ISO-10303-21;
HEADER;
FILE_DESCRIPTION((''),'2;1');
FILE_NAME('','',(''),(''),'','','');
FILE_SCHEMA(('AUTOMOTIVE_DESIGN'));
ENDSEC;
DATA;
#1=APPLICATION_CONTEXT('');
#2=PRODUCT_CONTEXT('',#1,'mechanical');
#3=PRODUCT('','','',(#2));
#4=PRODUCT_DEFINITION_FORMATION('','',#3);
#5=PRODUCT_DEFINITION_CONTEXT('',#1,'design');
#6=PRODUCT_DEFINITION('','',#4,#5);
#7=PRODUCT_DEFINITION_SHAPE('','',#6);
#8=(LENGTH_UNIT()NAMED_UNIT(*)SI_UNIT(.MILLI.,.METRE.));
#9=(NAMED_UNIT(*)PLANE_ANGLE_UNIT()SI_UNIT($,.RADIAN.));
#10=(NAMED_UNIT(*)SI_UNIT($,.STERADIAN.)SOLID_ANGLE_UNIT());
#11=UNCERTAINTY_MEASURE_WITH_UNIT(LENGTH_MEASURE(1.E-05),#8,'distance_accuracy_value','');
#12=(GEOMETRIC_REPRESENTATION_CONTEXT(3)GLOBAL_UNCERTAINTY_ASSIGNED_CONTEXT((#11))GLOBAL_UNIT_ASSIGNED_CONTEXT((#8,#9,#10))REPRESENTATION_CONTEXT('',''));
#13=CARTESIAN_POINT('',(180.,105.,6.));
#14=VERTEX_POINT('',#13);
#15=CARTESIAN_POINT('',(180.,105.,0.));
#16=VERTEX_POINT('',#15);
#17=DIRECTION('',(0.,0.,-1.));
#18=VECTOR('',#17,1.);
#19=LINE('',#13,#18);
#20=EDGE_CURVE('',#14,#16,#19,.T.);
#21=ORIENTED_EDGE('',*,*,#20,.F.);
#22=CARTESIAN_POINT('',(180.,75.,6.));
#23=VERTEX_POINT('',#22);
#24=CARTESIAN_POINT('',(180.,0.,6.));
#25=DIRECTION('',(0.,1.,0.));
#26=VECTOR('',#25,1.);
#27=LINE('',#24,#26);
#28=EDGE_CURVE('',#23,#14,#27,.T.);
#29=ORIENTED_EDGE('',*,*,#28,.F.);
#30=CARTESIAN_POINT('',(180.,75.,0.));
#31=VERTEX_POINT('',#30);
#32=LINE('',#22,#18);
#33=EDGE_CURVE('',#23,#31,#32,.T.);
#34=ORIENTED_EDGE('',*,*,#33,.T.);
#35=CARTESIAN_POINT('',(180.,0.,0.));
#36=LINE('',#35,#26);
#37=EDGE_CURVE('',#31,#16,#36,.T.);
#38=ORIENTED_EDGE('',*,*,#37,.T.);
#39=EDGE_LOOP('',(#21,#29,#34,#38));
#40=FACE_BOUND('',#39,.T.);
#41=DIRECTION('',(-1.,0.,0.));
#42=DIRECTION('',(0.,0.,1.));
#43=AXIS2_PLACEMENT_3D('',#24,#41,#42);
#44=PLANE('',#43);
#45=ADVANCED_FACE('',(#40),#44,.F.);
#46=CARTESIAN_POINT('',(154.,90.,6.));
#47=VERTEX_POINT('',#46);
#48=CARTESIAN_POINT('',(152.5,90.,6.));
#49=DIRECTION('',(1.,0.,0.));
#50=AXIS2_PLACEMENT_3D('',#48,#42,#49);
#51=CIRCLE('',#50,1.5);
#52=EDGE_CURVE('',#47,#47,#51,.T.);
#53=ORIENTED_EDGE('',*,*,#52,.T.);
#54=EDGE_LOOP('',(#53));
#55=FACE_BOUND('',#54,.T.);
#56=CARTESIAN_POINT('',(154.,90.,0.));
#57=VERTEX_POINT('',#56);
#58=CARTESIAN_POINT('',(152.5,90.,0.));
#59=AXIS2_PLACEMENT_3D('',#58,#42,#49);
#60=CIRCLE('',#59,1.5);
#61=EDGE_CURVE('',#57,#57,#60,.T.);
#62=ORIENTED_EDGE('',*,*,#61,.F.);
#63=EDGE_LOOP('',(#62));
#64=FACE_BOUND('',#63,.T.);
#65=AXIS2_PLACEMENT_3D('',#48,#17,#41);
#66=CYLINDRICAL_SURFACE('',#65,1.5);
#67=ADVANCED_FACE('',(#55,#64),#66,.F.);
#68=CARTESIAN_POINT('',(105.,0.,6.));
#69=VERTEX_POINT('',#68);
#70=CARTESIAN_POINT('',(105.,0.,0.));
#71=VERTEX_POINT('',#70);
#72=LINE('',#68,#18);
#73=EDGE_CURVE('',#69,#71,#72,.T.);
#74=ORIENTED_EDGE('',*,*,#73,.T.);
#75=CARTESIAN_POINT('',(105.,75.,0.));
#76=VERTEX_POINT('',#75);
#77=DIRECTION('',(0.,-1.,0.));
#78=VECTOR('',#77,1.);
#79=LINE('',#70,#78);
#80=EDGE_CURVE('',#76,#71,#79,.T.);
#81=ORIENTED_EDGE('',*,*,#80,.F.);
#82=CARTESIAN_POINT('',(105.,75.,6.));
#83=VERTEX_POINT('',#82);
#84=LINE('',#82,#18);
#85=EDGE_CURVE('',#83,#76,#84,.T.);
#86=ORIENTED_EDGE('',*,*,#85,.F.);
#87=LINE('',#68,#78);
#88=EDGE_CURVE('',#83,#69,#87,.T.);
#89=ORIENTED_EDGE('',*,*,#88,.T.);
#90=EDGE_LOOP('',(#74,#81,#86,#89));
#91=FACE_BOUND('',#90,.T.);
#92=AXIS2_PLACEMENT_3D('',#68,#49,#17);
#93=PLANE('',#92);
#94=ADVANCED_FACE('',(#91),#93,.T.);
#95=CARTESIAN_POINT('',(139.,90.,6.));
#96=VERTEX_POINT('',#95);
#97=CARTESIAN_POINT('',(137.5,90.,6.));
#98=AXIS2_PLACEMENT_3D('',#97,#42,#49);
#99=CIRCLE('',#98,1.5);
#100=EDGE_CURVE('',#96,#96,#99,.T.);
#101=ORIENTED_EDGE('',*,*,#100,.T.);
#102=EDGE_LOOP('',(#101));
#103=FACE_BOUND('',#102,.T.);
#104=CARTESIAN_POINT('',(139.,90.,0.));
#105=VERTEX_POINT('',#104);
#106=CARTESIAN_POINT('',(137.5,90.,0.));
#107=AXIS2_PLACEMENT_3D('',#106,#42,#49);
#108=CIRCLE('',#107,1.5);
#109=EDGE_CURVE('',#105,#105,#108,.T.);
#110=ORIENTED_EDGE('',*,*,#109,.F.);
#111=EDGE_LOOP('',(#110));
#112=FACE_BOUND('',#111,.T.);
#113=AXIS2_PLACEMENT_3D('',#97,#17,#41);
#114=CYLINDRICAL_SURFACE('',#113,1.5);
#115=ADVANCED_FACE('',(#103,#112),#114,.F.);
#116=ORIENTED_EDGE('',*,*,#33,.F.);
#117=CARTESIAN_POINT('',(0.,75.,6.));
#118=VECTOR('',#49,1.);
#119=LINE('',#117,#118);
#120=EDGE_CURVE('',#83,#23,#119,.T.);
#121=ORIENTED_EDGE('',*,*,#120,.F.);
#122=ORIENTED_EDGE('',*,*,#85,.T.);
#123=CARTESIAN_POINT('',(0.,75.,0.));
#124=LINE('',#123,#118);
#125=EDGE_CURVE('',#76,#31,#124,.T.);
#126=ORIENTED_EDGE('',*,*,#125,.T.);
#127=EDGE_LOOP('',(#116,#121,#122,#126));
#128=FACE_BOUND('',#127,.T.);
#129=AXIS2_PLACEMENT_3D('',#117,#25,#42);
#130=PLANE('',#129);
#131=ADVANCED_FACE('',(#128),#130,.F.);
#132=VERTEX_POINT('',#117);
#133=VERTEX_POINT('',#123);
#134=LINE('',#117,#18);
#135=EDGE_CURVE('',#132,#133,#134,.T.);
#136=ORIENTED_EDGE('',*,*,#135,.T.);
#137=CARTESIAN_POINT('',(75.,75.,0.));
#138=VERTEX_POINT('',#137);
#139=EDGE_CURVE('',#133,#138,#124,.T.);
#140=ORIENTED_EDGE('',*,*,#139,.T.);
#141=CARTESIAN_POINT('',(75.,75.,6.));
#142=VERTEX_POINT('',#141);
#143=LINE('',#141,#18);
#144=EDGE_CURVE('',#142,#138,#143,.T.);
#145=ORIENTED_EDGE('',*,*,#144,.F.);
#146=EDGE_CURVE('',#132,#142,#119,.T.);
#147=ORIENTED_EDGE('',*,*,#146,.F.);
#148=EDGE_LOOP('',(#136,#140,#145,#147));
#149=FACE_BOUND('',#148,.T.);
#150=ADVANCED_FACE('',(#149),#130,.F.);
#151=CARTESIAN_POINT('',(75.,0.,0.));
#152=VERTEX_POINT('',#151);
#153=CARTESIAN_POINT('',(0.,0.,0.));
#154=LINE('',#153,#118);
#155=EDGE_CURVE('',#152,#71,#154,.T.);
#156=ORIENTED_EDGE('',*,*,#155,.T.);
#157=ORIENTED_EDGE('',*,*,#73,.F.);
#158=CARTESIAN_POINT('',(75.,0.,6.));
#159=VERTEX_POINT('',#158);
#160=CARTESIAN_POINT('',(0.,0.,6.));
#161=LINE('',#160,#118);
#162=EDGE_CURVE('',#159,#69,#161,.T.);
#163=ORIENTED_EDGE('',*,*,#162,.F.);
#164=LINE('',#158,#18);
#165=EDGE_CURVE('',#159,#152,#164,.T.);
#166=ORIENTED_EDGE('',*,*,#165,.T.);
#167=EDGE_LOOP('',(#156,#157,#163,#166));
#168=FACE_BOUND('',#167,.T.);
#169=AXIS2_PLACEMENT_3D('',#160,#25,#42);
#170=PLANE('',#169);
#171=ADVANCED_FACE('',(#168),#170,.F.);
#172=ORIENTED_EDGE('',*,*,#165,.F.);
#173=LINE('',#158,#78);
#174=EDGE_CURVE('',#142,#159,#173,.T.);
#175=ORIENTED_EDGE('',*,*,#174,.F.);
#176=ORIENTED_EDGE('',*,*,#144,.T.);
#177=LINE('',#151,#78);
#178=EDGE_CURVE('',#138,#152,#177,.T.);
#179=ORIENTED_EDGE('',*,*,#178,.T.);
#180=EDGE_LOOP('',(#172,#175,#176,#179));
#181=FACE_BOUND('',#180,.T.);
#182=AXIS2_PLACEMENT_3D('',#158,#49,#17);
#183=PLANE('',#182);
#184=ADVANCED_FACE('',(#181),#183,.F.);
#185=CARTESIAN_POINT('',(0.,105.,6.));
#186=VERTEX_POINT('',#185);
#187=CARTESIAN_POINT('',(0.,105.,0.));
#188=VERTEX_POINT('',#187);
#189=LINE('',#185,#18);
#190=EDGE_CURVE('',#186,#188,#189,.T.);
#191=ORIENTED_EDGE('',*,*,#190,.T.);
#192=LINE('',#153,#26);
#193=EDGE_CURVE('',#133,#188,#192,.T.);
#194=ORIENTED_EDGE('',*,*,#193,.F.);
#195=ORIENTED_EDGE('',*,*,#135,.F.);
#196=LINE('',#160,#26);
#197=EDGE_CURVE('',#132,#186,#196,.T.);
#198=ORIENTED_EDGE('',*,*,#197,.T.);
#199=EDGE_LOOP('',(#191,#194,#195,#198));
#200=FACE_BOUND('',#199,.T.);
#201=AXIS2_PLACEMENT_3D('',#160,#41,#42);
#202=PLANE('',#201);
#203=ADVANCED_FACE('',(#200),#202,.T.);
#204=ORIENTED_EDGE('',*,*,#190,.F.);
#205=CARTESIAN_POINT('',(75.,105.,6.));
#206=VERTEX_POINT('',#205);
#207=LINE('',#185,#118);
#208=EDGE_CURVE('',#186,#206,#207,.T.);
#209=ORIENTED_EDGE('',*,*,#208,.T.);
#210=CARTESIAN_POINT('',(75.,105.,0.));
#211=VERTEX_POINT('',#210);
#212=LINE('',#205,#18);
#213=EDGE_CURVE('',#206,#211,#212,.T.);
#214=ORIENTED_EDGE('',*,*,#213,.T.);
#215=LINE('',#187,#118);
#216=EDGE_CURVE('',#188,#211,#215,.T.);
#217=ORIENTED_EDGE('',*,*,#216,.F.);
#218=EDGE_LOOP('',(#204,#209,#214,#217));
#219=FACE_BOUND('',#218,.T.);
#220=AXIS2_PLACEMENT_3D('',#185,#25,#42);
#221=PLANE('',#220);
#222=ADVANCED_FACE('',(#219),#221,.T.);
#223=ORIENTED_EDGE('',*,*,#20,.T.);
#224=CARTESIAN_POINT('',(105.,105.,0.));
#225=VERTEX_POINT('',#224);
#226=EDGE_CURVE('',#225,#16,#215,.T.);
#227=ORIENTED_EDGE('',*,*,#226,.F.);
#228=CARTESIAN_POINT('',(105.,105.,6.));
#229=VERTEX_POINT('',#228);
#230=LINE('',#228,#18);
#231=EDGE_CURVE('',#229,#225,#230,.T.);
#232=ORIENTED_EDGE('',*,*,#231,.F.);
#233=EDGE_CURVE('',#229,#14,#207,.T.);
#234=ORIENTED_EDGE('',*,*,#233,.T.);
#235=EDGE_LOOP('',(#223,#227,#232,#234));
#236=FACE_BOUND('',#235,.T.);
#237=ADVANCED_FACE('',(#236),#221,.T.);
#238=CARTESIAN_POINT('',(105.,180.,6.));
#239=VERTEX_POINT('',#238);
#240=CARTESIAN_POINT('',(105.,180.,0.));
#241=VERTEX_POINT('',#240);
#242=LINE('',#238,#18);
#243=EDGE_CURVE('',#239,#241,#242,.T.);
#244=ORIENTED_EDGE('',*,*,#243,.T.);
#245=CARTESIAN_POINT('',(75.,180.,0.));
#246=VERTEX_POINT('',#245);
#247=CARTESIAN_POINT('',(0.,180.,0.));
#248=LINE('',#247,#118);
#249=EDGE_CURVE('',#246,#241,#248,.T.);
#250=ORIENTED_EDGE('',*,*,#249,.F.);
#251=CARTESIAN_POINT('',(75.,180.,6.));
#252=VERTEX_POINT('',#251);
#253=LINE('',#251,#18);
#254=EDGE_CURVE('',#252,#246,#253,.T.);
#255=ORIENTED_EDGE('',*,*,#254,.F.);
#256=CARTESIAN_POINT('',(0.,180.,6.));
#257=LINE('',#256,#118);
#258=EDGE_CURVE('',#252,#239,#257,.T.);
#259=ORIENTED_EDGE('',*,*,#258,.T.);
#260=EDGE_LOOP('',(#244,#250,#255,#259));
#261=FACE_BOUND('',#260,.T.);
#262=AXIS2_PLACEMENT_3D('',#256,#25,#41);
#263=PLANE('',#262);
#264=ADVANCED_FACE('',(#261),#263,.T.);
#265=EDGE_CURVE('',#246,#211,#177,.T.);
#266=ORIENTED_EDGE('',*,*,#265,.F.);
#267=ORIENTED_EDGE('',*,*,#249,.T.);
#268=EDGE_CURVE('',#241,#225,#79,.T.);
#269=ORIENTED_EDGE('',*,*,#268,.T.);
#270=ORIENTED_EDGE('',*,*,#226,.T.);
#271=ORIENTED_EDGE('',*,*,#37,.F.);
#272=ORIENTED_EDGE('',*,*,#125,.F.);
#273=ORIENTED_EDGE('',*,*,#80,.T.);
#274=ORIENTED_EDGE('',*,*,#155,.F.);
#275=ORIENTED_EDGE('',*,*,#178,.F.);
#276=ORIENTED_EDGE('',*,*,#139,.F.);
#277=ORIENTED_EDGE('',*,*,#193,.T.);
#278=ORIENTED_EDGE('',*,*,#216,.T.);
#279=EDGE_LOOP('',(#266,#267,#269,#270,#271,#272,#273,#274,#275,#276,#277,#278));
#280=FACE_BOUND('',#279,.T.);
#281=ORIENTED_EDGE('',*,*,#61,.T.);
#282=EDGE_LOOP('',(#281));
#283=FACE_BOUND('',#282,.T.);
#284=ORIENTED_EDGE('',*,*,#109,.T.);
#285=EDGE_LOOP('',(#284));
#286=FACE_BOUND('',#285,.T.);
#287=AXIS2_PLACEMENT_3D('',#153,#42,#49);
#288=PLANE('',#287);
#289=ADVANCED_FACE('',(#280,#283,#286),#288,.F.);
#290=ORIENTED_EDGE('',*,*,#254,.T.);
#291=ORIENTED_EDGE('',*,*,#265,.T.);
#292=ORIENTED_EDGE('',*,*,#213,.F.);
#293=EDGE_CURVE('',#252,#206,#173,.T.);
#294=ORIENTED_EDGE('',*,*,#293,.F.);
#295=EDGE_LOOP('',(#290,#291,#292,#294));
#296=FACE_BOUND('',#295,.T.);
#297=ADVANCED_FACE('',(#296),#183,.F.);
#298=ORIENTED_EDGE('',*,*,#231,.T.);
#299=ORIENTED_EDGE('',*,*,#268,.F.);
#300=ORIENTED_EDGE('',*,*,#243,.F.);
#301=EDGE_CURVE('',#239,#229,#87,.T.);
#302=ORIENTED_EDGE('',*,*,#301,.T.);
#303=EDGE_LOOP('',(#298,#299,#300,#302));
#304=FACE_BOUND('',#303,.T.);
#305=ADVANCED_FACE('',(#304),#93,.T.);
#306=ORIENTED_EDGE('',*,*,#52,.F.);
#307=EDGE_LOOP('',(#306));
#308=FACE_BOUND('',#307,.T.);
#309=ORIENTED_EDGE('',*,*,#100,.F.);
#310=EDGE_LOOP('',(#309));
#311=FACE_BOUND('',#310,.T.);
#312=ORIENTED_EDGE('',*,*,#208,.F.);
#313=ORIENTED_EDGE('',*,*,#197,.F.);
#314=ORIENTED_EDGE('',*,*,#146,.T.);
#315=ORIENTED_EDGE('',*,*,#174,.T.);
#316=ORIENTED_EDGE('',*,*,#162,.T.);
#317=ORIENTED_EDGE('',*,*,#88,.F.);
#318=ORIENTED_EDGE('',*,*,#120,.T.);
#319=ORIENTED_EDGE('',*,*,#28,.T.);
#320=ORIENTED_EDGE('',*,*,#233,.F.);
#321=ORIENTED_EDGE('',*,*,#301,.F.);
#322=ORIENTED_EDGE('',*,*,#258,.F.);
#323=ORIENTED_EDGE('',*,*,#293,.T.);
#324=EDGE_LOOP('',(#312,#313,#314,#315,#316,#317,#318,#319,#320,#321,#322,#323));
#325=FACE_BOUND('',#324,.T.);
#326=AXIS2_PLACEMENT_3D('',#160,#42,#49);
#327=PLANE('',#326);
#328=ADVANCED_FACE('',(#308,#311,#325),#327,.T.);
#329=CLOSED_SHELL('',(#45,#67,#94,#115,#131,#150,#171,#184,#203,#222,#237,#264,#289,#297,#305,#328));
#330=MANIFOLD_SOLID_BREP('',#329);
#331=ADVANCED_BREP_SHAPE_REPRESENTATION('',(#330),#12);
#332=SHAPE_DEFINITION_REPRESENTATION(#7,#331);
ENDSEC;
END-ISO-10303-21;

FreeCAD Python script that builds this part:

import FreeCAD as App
import Part
import Sketcher

V = App.Vector
Q = App.Units.Quantity


def add_polygon(sketch, points):
    """Adds a closed chain of lines whose ends are joined by coincident constraints."""
    first, n = sketch.GeometryCount, len(points)
    for a, b in zip(points, points[1:] + points[:1]):
        sketch.addGeometry(Part.LineSegment(App.Vector(*a, 0), App.Vector(*b, 0)), False)
    for i in range(n):
        sketch.addConstraint(Sketcher.Constraint("Coincident", first + i, 2, first + (i + 1) % n, 1))

doc = App.newDocument("Part")
params = doc.addObject("Spreadsheet::Sheet", "Params")
for row, (alias, value) in enumerate([
    ("sketch1_diameter", "3 mm"),
    ("sketch1_width", "30 mm"),
    ("sketch1_width2", "75 mm"),
    ("pad1_length", "6 mm"),
], start=1):
    params.set(f"A{row}", alias)
    params.set(f"B{row}", "=" + value)
    params.setAlias(f"B{row}", alias)

body = doc.addObject("PartDesign::Body", "Body")

# Sketch on XY plane
sketch1 = doc.addObject("Sketcher::SketchObject", "Sketch")
body.addObject(sketch1)
sketch1.AttachmentSupport = (doc.XY_Plane, [""])
sketch1.MapMode = "FlatFace"
add_polygon(sketch1, [(105, 105), (105, 180), (75, 180), (75, 105), (0, 105), (0, 75), (75, 75), (75, 0), (105, 0), (105, 75), (180, 75), (180, 105)])  # lines 0-11
sketch1.addGeometry(Part.Circle(V(137.5, 90, 0), V(0, 0, 1), 1.5), False)  # 12
sketch1.addGeometry(Part.Circle(V(152.5, 90, 0), V(0, 0, 1), 1.5), False)  # 13
sketch1.addConstraint([
    Sketcher.Constraint("Vertical", 0),
    Sketcher.Constraint("Horizontal", 1),
    Sketcher.Constraint("Vertical", 2),
    Sketcher.Constraint("Horizontal", 3),
    Sketcher.Constraint("Vertical", 4),
    Sketcher.Constraint("Horizontal", 5),
    Sketcher.Constraint("Vertical", 6),
    Sketcher.Constraint("Horizontal", 7),
    Sketcher.Constraint("Vertical", 8),
    Sketcher.Constraint("Horizontal", 9),
    Sketcher.Constraint("Vertical", 10),
    Sketcher.Constraint("Horizontal", 11),
    Sketcher.Constraint("Equal", 12, 13),
    Sketcher.Constraint("PointOnObject", 3, 2, -2),
    Sketcher.Constraint("PointOnObject", 6, 2, -1),
    Sketcher.Constraint("Horizontal", 12, 3, 13, 3),
    Sketcher.Constraint("Horizontal", 5, 2, 8, 2),
    Sketcher.Constraint("Horizontal", 3, 2, 10, 2),
    Sketcher.Constraint("Vertical", 2, 2, 5, 2),
    Sketcher.Constraint("Vertical", 0, 2, 7, 2),
    Sketcher.Constraint("Equal", 5, 9),
    Sketcher.Constraint("Equal", 11, 0),
    Sketcher.Constraint("Equal", 7, 4),
    Sketcher.Constraint("Equal", 2, 6),
    Sketcher.Constraint("Diameter", 12, Q("3 mm")),
    Sketcher.Constraint("DistanceX", 1, 2, 1, 1, Q("30 mm")),
    Sketcher.Constraint("DistanceX", 3, 2, 3, 1, Q("75 mm")),
    Sketcher.Constraint("DistanceY", -1, 1, 12, 3, Q("90 mm")),
    Sketcher.Constraint("DistanceX", 12, 3, 13, 3, Q("15 mm")),
    Sketcher.Constraint("DistanceX", -1, 1, 12, 3, Q("137.5 mm")),
])
sketch1.setExpression("Constraints[36]", "Params.sketch1_diameter")
sketch1.setExpression("Constraints[37]", "Params.sketch1_width")
sketch1.setExpression("Constraints[38]", "Params.sketch1_width2")
pad1 = doc.addObject("PartDesign::Pad", "Pad")
body.addObject(pad1)
pad1.Profile = sketch1
pad1.setExpression("Length", "Params.pad1_length")

doc.recompute()
